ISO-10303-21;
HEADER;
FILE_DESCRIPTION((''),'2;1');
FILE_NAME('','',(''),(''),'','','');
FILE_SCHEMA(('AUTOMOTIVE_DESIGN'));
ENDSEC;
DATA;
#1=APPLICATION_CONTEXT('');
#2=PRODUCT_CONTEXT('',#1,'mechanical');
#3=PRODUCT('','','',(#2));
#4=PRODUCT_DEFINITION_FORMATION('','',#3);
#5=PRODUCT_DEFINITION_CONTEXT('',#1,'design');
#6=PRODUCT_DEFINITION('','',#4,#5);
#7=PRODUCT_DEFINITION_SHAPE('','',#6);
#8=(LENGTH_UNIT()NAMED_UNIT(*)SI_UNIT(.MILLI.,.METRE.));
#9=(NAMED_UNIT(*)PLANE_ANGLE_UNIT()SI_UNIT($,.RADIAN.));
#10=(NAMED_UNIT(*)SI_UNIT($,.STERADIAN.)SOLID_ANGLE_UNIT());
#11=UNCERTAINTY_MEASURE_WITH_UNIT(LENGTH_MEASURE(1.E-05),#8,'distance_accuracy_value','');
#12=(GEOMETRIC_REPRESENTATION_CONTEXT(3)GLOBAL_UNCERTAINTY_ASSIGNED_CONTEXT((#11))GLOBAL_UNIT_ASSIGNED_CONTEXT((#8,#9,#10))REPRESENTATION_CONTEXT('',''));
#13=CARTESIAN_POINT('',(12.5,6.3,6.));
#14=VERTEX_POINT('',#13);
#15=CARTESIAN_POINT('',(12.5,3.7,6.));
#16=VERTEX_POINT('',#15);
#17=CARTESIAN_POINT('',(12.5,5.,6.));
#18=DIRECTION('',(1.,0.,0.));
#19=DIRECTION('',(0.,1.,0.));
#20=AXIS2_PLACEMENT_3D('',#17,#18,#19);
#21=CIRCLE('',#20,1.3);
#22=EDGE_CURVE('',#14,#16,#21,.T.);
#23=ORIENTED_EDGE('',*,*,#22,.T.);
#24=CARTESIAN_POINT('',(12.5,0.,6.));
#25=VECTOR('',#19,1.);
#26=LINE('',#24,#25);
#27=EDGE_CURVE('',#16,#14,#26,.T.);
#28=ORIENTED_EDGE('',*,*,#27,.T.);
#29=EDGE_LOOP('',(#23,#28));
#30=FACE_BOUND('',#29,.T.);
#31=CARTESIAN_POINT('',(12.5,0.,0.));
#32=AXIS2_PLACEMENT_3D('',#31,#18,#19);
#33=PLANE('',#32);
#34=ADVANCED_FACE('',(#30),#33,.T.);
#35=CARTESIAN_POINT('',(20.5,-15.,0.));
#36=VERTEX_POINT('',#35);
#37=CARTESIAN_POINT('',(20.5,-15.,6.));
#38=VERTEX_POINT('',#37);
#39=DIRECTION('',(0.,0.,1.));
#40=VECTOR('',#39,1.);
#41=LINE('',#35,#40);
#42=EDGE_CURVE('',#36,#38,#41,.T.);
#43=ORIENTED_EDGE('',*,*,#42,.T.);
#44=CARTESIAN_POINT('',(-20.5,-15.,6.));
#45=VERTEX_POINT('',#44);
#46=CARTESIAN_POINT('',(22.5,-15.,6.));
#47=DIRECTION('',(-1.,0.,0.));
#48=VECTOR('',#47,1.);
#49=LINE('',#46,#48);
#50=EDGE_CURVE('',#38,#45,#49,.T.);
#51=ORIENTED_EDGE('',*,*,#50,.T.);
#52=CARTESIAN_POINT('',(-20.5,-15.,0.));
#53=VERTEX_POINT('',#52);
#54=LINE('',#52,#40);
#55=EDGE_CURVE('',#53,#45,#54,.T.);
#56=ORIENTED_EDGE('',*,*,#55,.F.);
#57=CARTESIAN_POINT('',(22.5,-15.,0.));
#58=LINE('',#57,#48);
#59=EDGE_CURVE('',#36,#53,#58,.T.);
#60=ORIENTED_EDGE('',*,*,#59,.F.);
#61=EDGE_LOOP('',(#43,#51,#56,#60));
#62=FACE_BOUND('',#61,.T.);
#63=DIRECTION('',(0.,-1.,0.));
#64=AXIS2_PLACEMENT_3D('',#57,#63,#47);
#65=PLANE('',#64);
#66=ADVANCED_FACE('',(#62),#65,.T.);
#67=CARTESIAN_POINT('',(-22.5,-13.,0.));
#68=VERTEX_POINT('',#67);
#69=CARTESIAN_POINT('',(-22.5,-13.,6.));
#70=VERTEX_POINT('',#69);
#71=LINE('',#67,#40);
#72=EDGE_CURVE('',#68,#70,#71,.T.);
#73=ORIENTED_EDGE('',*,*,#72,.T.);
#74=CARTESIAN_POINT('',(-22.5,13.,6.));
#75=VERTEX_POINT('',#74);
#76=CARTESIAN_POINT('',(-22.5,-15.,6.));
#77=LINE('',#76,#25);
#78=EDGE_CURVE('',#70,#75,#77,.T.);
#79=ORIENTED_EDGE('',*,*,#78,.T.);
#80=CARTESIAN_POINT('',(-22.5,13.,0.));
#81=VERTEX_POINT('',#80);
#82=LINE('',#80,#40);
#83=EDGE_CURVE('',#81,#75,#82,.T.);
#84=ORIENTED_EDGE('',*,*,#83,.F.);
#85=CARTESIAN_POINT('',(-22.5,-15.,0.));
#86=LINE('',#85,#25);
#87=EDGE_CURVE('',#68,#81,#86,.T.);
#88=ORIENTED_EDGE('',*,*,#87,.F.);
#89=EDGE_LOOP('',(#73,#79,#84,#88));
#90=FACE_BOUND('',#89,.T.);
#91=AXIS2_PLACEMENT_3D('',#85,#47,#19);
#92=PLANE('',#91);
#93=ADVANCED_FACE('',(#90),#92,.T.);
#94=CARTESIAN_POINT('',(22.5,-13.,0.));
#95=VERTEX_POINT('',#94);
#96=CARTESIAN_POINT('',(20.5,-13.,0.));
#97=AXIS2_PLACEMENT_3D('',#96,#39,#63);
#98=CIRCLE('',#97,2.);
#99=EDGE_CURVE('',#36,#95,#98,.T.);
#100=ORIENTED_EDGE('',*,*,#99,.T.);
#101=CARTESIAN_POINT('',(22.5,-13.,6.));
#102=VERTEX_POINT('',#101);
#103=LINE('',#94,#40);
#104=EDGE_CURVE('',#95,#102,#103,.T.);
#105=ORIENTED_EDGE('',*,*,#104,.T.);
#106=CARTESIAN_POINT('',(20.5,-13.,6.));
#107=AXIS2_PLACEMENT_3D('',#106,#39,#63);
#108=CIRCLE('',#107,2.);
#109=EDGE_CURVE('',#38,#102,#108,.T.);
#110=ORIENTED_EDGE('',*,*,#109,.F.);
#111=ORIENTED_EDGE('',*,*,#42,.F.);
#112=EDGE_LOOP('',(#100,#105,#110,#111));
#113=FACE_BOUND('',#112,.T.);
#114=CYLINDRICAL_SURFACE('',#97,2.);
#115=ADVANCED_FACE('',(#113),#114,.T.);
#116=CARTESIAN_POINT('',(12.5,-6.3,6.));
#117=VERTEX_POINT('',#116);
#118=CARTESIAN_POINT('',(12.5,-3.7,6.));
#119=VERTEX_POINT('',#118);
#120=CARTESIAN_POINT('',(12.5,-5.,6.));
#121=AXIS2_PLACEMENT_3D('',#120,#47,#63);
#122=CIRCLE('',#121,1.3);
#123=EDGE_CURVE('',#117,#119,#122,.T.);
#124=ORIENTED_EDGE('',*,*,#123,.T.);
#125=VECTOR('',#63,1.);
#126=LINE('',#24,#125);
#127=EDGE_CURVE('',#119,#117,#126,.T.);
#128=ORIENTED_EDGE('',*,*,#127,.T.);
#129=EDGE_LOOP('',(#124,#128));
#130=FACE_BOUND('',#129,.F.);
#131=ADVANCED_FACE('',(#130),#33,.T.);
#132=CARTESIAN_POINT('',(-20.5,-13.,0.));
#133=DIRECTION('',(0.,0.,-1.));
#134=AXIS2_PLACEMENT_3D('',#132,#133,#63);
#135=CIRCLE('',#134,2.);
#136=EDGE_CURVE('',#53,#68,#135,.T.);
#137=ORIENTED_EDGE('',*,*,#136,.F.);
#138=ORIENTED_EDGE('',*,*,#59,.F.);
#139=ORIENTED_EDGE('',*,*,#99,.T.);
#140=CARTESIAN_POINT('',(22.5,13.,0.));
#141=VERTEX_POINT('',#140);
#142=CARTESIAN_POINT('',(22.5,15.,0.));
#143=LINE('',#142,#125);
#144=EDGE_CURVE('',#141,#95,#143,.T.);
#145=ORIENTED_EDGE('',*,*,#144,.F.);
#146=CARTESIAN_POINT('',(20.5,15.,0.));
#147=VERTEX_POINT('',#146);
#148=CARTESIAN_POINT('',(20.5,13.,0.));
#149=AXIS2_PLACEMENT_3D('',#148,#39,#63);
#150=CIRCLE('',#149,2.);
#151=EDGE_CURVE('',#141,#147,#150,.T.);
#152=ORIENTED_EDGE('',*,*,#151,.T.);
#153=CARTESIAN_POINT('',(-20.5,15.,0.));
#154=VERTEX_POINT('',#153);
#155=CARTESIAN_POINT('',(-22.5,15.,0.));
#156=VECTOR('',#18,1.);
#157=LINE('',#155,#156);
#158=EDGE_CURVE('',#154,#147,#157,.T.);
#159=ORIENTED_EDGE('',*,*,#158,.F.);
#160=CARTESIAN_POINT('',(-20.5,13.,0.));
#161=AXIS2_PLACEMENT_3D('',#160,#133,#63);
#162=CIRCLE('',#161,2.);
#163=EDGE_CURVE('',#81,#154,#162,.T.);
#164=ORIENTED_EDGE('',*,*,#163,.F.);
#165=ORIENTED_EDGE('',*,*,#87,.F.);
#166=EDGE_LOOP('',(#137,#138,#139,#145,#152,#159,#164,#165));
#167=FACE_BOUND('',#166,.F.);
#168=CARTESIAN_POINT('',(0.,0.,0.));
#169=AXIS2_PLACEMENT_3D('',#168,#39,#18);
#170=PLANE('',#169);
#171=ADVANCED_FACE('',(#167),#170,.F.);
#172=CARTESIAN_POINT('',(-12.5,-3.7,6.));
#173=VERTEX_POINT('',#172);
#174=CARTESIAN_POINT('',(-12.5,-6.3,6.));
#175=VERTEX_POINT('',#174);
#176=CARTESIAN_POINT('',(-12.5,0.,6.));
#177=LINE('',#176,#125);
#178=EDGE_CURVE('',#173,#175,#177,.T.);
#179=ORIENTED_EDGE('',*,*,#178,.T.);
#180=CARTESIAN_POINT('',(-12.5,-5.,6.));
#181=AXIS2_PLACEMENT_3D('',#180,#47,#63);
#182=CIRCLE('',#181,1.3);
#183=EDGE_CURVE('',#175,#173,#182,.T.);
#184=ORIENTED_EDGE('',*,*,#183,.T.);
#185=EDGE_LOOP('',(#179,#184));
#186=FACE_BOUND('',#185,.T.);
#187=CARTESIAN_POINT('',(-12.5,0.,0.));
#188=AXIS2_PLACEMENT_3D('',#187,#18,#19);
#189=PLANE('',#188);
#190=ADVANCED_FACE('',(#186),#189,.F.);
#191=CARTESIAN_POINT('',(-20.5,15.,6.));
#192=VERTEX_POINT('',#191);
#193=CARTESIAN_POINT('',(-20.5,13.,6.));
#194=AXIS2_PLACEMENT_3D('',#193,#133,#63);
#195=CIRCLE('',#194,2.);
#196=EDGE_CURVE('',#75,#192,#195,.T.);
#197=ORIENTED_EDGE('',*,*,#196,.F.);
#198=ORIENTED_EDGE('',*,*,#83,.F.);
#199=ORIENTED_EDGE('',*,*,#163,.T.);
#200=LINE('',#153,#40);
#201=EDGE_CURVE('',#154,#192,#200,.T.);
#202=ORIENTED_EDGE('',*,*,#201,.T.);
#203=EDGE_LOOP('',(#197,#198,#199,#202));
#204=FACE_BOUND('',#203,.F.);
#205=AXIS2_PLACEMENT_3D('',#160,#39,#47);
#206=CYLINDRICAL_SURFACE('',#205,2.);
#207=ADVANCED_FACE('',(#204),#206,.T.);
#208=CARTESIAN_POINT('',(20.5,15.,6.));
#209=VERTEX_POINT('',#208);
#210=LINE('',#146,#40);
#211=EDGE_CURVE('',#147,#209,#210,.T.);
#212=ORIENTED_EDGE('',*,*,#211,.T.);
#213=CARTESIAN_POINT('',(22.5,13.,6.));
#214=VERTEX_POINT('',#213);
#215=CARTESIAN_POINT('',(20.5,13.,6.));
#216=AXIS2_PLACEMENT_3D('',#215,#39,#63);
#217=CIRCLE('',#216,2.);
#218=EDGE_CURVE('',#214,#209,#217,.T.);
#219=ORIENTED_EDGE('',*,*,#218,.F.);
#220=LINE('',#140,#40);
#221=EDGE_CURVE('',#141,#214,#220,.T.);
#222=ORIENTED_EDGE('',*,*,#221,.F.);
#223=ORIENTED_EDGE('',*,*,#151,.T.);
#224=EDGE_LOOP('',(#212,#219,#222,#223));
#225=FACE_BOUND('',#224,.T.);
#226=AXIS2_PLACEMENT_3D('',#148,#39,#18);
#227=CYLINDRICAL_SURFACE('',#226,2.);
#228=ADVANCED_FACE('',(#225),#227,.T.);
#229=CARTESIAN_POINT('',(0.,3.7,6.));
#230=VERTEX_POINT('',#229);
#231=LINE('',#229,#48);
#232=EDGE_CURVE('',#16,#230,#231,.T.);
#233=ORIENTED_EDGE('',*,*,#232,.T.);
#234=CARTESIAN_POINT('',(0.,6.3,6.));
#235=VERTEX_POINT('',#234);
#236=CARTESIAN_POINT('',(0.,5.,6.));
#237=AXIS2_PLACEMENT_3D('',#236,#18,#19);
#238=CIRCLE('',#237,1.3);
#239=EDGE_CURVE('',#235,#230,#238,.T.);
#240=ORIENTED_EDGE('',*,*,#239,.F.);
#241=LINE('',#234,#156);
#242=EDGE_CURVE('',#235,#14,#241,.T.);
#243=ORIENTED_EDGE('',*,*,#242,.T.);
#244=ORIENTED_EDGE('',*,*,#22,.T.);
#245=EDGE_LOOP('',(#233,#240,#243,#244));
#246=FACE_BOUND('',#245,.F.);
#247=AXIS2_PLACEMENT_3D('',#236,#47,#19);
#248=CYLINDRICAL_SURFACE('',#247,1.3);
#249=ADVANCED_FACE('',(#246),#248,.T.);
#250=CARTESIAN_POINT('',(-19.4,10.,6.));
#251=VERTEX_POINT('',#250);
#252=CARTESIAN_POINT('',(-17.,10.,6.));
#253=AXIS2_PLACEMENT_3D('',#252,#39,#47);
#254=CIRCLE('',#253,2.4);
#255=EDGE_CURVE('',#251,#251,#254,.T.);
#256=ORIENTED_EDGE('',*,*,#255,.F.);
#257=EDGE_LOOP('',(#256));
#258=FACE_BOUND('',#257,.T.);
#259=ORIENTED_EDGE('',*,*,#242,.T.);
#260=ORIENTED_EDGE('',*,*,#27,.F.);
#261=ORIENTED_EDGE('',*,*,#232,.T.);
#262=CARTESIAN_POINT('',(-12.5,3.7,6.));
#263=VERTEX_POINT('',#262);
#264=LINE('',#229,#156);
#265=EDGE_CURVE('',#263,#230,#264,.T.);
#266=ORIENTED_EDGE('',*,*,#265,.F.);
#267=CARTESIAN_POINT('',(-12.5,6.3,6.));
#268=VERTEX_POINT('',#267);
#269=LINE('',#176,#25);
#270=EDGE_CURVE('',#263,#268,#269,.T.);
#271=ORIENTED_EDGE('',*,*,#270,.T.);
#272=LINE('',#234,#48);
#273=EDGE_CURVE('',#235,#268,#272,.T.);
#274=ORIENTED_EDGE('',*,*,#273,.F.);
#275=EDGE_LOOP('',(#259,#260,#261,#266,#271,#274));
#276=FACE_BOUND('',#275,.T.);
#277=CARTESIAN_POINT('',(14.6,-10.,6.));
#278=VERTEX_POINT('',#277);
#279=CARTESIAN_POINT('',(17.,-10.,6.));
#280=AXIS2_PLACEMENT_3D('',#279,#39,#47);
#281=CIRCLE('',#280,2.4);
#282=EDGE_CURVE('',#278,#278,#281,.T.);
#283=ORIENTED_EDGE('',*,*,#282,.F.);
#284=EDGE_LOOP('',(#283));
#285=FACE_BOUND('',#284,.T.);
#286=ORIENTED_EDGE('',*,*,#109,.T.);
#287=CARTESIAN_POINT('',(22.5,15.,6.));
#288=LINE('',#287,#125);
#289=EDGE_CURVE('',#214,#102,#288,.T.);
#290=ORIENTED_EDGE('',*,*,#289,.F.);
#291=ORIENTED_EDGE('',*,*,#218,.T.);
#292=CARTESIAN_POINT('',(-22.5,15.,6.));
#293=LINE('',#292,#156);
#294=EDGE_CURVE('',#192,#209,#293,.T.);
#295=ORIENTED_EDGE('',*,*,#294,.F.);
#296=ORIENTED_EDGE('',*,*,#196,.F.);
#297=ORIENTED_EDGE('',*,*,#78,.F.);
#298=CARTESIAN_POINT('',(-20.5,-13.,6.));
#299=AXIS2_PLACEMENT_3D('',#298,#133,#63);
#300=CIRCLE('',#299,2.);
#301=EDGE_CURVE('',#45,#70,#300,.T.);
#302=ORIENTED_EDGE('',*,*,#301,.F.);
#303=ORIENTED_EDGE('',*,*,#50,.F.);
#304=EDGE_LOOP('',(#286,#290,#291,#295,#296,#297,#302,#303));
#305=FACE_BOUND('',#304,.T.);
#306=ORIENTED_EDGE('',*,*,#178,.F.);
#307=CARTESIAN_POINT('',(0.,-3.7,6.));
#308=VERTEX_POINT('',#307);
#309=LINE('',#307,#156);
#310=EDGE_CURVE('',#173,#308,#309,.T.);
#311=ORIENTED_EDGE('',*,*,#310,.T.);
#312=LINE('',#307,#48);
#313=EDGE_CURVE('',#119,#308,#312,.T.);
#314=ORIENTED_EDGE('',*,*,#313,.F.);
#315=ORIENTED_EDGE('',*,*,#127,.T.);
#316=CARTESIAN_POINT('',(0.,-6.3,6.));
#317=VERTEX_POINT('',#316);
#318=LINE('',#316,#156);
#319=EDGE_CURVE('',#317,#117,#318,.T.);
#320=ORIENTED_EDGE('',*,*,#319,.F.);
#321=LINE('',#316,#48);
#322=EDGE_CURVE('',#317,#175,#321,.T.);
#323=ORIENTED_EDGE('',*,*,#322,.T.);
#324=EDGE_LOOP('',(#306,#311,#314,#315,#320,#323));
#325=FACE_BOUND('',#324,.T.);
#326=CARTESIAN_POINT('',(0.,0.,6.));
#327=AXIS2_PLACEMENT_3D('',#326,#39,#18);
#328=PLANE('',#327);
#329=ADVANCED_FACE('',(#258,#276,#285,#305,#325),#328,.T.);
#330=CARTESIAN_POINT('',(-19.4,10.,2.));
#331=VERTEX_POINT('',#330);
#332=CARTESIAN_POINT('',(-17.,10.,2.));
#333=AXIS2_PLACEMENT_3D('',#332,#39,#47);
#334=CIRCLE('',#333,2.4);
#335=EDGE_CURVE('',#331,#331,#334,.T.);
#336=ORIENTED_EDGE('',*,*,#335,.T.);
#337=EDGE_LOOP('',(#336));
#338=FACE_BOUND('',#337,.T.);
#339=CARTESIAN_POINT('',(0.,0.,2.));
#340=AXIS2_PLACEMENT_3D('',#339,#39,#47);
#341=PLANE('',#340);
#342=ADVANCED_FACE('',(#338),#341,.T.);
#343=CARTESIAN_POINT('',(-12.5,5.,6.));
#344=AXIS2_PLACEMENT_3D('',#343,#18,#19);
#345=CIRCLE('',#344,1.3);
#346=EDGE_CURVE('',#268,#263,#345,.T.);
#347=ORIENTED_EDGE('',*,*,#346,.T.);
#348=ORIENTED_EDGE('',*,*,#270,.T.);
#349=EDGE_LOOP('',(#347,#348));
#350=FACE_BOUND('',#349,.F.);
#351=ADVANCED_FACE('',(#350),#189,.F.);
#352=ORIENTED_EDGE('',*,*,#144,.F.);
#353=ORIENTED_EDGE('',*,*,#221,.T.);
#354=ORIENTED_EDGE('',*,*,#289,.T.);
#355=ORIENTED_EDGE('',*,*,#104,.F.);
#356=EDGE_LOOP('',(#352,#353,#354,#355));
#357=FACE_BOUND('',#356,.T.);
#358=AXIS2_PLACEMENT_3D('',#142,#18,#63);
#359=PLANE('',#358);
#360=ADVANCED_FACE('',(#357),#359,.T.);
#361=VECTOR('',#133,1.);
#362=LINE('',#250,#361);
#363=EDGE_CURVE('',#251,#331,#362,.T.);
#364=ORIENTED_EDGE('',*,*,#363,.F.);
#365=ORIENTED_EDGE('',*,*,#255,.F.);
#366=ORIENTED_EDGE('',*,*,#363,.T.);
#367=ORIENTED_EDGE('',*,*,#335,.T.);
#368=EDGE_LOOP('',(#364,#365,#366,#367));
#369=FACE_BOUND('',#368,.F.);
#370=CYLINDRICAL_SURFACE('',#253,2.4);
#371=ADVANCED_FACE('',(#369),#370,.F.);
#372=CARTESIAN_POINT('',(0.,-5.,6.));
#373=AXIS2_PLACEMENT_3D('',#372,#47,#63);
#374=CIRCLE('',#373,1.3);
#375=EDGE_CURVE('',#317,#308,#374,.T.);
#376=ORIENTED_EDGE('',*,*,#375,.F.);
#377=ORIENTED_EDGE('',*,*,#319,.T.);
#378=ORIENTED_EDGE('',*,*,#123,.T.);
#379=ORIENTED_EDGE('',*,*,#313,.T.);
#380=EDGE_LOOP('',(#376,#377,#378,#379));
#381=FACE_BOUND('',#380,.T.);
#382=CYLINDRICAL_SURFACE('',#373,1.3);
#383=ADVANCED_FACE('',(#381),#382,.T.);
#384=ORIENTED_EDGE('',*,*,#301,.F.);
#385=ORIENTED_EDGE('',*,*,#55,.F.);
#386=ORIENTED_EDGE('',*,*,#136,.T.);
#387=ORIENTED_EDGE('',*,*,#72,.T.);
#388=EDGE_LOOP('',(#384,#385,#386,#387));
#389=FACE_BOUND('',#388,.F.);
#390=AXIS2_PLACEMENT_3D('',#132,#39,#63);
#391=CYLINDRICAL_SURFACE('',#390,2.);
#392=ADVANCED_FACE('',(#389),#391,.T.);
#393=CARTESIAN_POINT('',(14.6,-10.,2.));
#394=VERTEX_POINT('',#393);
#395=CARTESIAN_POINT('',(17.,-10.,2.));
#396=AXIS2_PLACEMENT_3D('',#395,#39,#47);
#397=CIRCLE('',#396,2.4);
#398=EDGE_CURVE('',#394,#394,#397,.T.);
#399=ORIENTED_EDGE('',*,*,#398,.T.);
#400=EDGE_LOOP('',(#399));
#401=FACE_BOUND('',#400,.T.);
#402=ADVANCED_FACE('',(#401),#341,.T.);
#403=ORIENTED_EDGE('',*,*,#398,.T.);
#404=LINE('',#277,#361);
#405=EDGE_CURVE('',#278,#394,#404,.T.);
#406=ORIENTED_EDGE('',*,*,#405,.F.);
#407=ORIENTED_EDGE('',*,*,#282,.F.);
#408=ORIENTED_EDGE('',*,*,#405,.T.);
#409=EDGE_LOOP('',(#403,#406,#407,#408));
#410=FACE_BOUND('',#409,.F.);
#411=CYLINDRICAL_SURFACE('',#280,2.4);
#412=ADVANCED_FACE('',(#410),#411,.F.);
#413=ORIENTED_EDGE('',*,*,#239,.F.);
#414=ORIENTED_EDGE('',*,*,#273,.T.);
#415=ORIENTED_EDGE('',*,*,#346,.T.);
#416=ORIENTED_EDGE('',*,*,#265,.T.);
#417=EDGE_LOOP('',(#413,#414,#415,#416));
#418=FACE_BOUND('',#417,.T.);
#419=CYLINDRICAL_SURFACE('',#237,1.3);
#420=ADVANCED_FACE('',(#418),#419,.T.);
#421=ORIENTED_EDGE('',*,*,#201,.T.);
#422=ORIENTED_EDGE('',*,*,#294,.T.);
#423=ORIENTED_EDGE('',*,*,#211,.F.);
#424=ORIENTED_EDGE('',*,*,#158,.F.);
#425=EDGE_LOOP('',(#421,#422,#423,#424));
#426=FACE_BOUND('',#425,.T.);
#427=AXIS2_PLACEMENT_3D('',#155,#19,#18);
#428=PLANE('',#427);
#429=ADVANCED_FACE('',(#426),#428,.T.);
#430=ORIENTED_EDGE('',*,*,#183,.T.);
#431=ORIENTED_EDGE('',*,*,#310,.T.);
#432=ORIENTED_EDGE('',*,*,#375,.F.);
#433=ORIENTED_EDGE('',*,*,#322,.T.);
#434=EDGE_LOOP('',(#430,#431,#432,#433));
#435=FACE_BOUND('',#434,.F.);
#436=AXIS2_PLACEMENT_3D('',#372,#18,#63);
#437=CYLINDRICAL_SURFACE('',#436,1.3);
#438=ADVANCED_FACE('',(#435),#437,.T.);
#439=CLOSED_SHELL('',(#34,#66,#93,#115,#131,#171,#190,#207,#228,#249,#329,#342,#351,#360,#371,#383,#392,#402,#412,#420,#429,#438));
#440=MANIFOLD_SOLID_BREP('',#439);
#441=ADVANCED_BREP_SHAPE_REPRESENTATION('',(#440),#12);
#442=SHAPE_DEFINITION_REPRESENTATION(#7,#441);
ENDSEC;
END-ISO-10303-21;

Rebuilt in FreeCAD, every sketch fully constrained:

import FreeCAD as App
import Part
import Sketcher

V = App.Vector
Q = App.Units.Quantity


def edges_at(feature, points):
    """Names of the edges that pass closest to the given points."""
    edges = feature.Shape.Edges
    near = lambda p: min(range(len(edges)), key=lambda i: edges[i].distToShape(Part.Vertex(*p))[0])
    return sorted({f"Edge{near(p) + 1}" for p in points})

doc = App.newDocument("Part")
body = doc.addObject("PartDesign::Body", "Body")

# Sketch on XY plane
sketch1 = body.newObject("Sketcher::SketchObject", "Sketch")
sketch1.AttachmentSupport = (doc.getObject("XY_Plane"), [""])
sketch1.MapMode = "FlatFace"
sketch1.addGeometry([
    Part.LineSegment(V(-22, -15, 0), V(22, -15, 0)),
    Part.LineSegment(V(22, -15, 0), V(22, 15, 0)),
    Part.LineSegment(V(22, 15, 0), V(-22, 15, 0)),
    Part.LineSegment(V(-22, 15, 0), V(-22, -15, 0)),
], False)
sketch1.addConstraint([
    Sketcher.Constraint("Coincident", 0, 2, 1, 1),
    Sketcher.Constraint("Coincident", 1, 2, 2, 1),
    Sketcher.Constraint("Coincident", 2, 2, 3, 1),
    Sketcher.Constraint("Coincident", 3, 2, 0, 1),
    Sketcher.Constraint("Horizontal", 0),
    Sketcher.Constraint("Vertical", 1),
    Sketcher.Constraint("Horizontal", 2),
    Sketcher.Constraint("Vertical", 3),
    Sketcher.Constraint("Symmetric", 0, 2, 2, 2, -1, 1),
    Sketcher.Constraint("DistanceX", 0, 1, 0, 2, Q("45 mm")),
    Sketcher.Constraint("DistanceY", 1, 1, 1, 2, Q("30 mm")),
])
pad1 = body.newObject("PartDesign::Pad", "Pad")
pad1.Profile = sketch1
pad1.Length = 6

# Sketch on YZ plane
sketch2 = body.newObject("Sketcher::SketchObject", "Sketch001")
sketch2.AttachmentSupport = (doc.getObject("YZ_Plane"), [""])
sketch2.MapMode = "FlatFace"
sketch2.addGeometry(Part.Circle(V(5, 6, 0), V(0, 0, 1), 1.3), False)
sketch2.addConstraint([
    Sketcher.Constraint("Diameter", 0, Q("2.6 mm")),
    Sketcher.Constraint("DistanceX", -1, 1, 0, 3, Q("5 mm")),
    Sketcher.Constraint("DistanceY", -1, 1, 0, 3, Q("6 mm")),
])
pad2 = body.newObject("PartDesign::Pad", "Pad001")
pad2.Profile = sketch2
pad2.Type = "TwoLengths"
pad2.Length = 12.5
pad2.Length2 = 12.5
doc.recompute()

mirrored = body.newObject("PartDesign::Mirrored", "Mirrored")
mirrored.Originals = [pad2]
mirrored.MirrorPlane = (doc.getObject("XZ_Plane"), [""])
body.Tip = mirrored
doc.recompute()

fillet = body.newObject("PartDesign::Fillet", "Fillet")
fillet.Base = (mirrored, edges_at(mirrored, [
    (22.5, 15, 3),
    (22.5, -15, 3),
    (-22.5, -15, 3),
    (-22.5, 15, 3),
]))
fillet.Radius = 2

# Sketch on XY plane
sketch3 = body.newObject("Sketcher::SketchObject", "Sketch002")
sketch3.AttachmentSupport = (doc.getObject("XY_Plane"), [""])
sketch3.MapMode = "FlatFace"
sketch3.AttachmentOffset = App.Placement(V(0, 0, 6), App.Rotation())
sketch3.addGeometry(Part.Circle(V(17, -10, 0), V(0, 0, 1), 2.4), False)
sketch3.addConstraint([
    Sketcher.Constraint("Diameter", 0, Q("4.8 mm")),
    Sketcher.Constraint("DistanceX", -1, 1, 0, 3, Q("17 mm")),
    Sketcher.Constraint("DistanceY", 0, 3, -1, 1, Q("10 mm")),
])
pocket1 = body.newObject("PartDesign::Pocket", "Pocket")
pocket1.Profile = sketch3
pocket1.Length = 4

# Sketch on XY plane
sketch4 = body.newObject("Sketcher::SketchObject", "Sketch003")
sketch4.AttachmentSupport = (doc.getObject("XY_Plane"), [""])
sketch4.MapMode = "FlatFace"
sketch4.AttachmentOffset = App.Placement(V(0, 0, 6), App.Rotation())
sketch4.addGeometry(Part.Circle(V(-17, 10, 0), V(0, 0, 1), 2.4), False)
sketch4.addConstraint([
    Sketcher.Constraint("Diameter", 0, Q("4.8 mm")),
    Sketcher.Constraint("DistanceX", 0, 3, -1, 1, Q("17 mm")),
    Sketcher.Constraint("DistanceY", -1, 1, 0, 3, Q("10 mm")),
])
pocket2 = body.newObject("PartDesign::Pocket", "Pocket001")
pocket2.Profile = sketch4
pocket2.Length = 4

doc.recompute()
